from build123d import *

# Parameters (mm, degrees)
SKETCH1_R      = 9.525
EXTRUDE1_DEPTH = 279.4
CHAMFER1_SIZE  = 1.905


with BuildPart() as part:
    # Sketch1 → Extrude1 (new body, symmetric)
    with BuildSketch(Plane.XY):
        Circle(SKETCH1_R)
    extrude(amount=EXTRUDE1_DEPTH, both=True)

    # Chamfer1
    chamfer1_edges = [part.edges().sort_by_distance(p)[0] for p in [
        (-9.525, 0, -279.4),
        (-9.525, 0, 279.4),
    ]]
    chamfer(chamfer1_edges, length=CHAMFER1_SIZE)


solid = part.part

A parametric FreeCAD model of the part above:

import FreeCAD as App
import Part
import Sketcher
Q = App.Units.Quantity


def edges_at(feature, points):
    """Names of the edges that pass closest to the given points."""
    edges = feature.Shape.Edges
    near = lambda p: min(range(len(edges)), key=lambda i: edges[i].distToShape(Part.Vertex(*p))[0])
    return sorted({f"Edge{near(p) + 1}" for p in points})

doc = App.newDocument("Part")
body = doc.addObject("PartDesign::Body", "Body")

sketch1 = body.newObject("Sketcher::SketchObject", "Sketch")
sketch1.AttachmentSupport = (doc.getObject("XY_Plane"), [""])
sketch1.MapMode = "FlatFace"
sketch1.addGeometry(Part.Circle(App.Vector(0, 0, 0), App.Vector(0, 0, 1), 9.525), False)
sketch1.addConstraint([
    Sketcher.Constraint("Coincident", 0, 3, -1, 1),
    Sketcher.Constraint("Diameter", 0, Q("0.75 in")),
])
pad1 = body.newObject("PartDesign::Pad", "Pad")
pad1.Profile = sketch1
pad1.Length = Q("22 in")
pad1.Midplane = True
doc.recompute()

chamfer = body.newObject("PartDesign::Chamfer", "Chamfer")
chamfer.Base = (pad1, edges_at(pad1, [(-9.525, 0, -279.4), (-9.525, 0, 279.4)]))
chamfer.Size = Q("0.075 in")

doc.recompute()
